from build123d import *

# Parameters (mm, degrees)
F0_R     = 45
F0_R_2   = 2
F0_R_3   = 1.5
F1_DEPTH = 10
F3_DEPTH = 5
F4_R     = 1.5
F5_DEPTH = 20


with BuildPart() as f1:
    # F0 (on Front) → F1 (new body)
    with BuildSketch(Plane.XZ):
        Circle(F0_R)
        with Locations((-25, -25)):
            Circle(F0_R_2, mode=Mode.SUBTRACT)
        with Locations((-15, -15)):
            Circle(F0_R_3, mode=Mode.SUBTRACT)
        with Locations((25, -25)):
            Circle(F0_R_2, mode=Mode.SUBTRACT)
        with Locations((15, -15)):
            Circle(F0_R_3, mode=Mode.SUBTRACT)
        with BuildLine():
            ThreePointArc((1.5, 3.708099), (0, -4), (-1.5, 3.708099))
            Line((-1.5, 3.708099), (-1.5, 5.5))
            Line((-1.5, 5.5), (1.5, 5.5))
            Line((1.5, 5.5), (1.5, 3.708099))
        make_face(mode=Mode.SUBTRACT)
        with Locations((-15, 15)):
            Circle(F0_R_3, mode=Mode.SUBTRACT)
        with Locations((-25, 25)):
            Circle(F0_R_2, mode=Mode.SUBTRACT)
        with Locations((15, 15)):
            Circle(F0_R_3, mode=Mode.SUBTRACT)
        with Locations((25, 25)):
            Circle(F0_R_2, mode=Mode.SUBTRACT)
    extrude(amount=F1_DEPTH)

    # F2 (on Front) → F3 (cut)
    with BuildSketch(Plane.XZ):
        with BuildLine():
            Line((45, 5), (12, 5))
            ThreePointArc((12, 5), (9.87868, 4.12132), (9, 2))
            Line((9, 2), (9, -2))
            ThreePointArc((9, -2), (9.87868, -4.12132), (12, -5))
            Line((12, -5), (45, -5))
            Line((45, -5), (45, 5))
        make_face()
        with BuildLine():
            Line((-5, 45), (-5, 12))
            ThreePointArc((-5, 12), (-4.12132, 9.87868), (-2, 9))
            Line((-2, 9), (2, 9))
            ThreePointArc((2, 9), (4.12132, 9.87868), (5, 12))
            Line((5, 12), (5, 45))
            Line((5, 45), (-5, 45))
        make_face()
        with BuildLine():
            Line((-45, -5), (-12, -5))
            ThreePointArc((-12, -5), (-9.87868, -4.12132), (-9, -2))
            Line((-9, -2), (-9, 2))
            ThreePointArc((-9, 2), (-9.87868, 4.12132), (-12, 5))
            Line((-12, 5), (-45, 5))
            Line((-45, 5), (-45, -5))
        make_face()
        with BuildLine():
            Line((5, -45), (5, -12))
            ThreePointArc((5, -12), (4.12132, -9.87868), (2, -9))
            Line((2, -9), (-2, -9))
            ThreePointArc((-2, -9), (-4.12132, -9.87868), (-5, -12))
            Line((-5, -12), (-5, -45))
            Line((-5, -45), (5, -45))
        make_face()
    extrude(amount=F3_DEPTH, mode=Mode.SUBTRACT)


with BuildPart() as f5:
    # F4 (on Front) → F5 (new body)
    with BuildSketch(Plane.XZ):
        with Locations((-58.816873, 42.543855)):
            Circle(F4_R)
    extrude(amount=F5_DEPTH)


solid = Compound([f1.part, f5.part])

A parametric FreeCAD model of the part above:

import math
import FreeCAD as App
import Part
import Sketcher

V = App.Vector
Q = App.Units.Quantity

doc = App.newDocument("Part")
body = doc.addObject("PartDesign::Body", "Body")

sketch1 = body.newObject("Sketcher::SketchObject", "Sketch")
sketch1.AttachmentSupport = (doc.getObject("XZ_Plane"), [""])
sketch1.MapMode = "FlatFace"
sketch1.addGeometry([
    Part.Circle(V(0, 0, 0), V(0, 0, 1), 45),
    Part.Circle(V(-25, -25, 0), V(0, 0, 1), 2),
    Part.Circle(V(-15, -15, 0), V(0, 0, 1), 1.5),
    Part.Circle(V(25, -25, 0), V(0, 0, 1), 2),
    Part.Circle(V(15, -15, 0), V(0, 0, 1), 1.5),
    Part.Circle(V(-15, 15, 0), V(0, 0, 1), 1.5),
    Part.Circle(V(-25, 25, 0), V(0, 0, 1), 2),
    Part.LineSegment(V(1.5, 5.5, 0), V(1.5, 3.7, 0)),
    Part.ArcOfCircle(Part.Circle(V(0, 0, 0), V(0, 0, 1), 4), math.radians(112), math.radians(428)),
    Part.LineSegment(V(-1.5, 3.7, 0), V(-1.5, 5.5, 0)),
    Part.LineSegment(V(-1.5, 5.5, 0), V(1.5, 5.5, 0)),
    Part.Circle(V(15, 15, 0), V(0, 0, 1), 1.5),
    Part.Circle(V(25, 25, 0), V(0, 0, 1), 2),
], False)
sketch1.addConstraint([
    Sketcher.Constraint("Coincident", 7, 2, 8, 2),
    Sketcher.Constraint("Coincident", 8, 1, 9, 1),
    Sketcher.Constraint("Coincident", 9, 2, 10, 1),
    Sketcher.Constraint("Coincident", 10, 2, 7, 1),
    Sketcher.Constraint("Vertical", 7),
    Sketcher.Constraint("Vertical", 9),
    Sketcher.Constraint("Horizontal", 10),
    Sketcher.Constraint("Coincident", 0, 3, -1, 1),
    Sketcher.Constraint("Coincident", 8, 3, -1, 1),
    Sketcher.Constraint("Equal", 1, 3),
    Sketcher.Constraint("Equal", 2, 4),
    Sketcher.Constraint("Equal", 4, 5),
    Sketcher.Constraint("Equal", 3, 6),
    Sketcher.Constraint("Equal", 5, 11),
    Sketcher.Constraint("Equal", 6, 12),
    Sketcher.Constraint("Symmetric", 4, 3, 5, 3, -1, 1),
    Sketcher.Constraint("Symmetric", 3, 3, 6, 3, -1, 1),
    Sketcher.Constraint("Symmetric", 2, 3, 11, 3, -1, 1),
    Sketcher.Constraint("Symmetric", 1, 3, 12, 3, -1, 1),
    Sketcher.Constraint("Symmetric", 1, 3, 3, 3, -2),
    Sketcher.Constraint("Symmetric", 2, 3, 4, 3, -2),
    Sketcher.Constraint("Horizontal", 7, 2, 8, 1),
    Sketcher.Constraint("Diameter", 0, Q("90 mm")),
    Sketcher.Constraint("Diameter", 1, Q("4 mm")),
    Sketcher.Constraint("Diameter", 2, Q("3 mm")),
    Sketcher.Constraint("Radius", 8, Q("4 mm")),
    Sketcher.Constraint("DistanceX", 10, 1, 10, 2, Q("3 mm")),
    Sketcher.Constraint("DistanceX", 1, 3, -1, 1, Q("25 mm")),
    Sketcher.Constraint("DistanceY", 1, 3, -1, 1, Q("25 mm")),
    Sketcher.Constraint("DistanceX", 2, 3, -1, 1, Q("15 mm")),
    Sketcher.Constraint("DistanceY", 2, 3, -1, 1, Q("15 mm")),
    Sketcher.Constraint("DistanceY", -1, 1, 9, 2, Q("5.5 mm")),
])
pad1 = body.newObject("PartDesign::Pad", "Pad")
pad1.Profile = sketch1
pad1.Length = 10

sketch2 = body.newObject("Sketcher::SketchObject", "Sketch001")
sketch2.AttachmentSupport = (doc.getObject("XZ_Plane"), [""])
sketch2.MapMode = "FlatFace"
sketch2.addGeometry([
    Part.LineSegment(V(45, 5, 0), V(12, 5, 0)),
    Part.ArcOfCircle(Part.Circle(V(12, 2, 0), V(0, 0, 1), 3), math.radians(90), math.radians(180)),
    Part.LineSegment(V(9, 2, 0), V(9, -2, 0)),
    Part.ArcOfCircle(Part.Circle(V(12, -2, 0), V(0, 0, 1), 3), math.radians(-180), math.radians(-90)),
    Part.LineSegment(V(12, -5, 0), V(45, -5, 0)),
    Part.LineSegment(V(45, -5, 0), V(45, 5, 0)),
    Part.LineSegment(V(-5, 45, 0), V(-5, 12, 0)),
    Part.ArcOfCircle(Part.Circle(V(-2, 12, 0), V(0, 0, 1), 3), math.radians(-180), math.radians(-90)),
    Part.LineSegment(V(-2, 9, 0), V(2, 9, 0)),
    Part.ArcOfCircle(Part.Circle(V(2, 12, 0), V(0, 0, 1), 3), math.radians(-90), math.radians(0)),
    Part.LineSegment(V(5, 12, 0), V(5, 45, 0)),
    Part.LineSegment(V(5, 45, 0), V(-5, 45, 0)),
    Part.LineSegment(V(-45, -5, 0), V(-12, -5, 0)),
    Part.ArcOfCircle(Part.Circle(V(-12, -2, 0), V(0, 0, 1), 3), math.radians(-90), math.radians(0)),
    Part.LineSegment(V(-9, -2, 0), V(-9, 2, 0)),
    Part.ArcOfCircle(Part.Circle(V(-12, 2, 0), V(0, 0, 1), 3), math.radians(0), math.radians(90)),
    Part.LineSegment(V(-12, 5, 0), V(-45, 5, 0)),
    Part.LineSegment(V(-45, 5, 0), V(-45, -5, 0)),
    Part.LineSegment(V(5, -45, 0), V(5, -12, 0)),
    Part.ArcOfCircle(Part.Circle(V(2, -12, 0), V(0, 0, 1), 3), math.radians(0), math.radians(90)),
    Part.LineSegment(V(2, -9, 0), V(-2, -9, 0)),
    Part.ArcOfCircle(Part.Circle(V(-2, -12, 0), V(0, 0, 1), 3), math.radians(90), math.radians(180)),
    Part.LineSegment(V(-5, -12, 0), V(-5, -45, 0)),
    Part.LineSegment(V(-5, -45, 0), V(5, -45, 0)),
], False)
sketch2.addConstraint([
    Sketcher.Constraint("Tangent", 0, 2, 1, 1),
    Sketcher.Constraint("Tangent", 1, 2, 2, 1),
    Sketcher.Constraint("Tangent", 2, 2, 3, 1),
    Sketcher.Constraint("Tangent", 3, 2, 4, 1),
    Sketcher.Constraint("Coincident", 4, 2, 5, 1),
    Sketcher.Constraint("Coincident", 5, 2, 0, 1),
    Sketcher.Constraint("Tangent", 6, 2, 7, 1),
    Sketcher.Constraint("Tangent", 7, 2, 8, 1),
    Sketcher.Constraint("Tangent", 8, 2, 9, 1),
    Sketcher.Constraint("Tangent", 9, 2, 10, 1),
    Sketcher.Constraint("Coincident", 10, 2, 11, 1),
    Sketcher.Constraint("Coincident", 11, 2, 6, 1),
    Sketcher.Constraint("Tangent", 12, 2, 13, 1),
    Sketcher.Constraint("Tangent", 13, 2, 14, 1),
    Sketcher.Constraint("Tangent", 14, 2, 15, 1),
    Sketcher.Constraint("Tangent", 15, 2, 16, 1),
    Sketcher.Constraint("Coincident", 16, 2, 17, 1),
    Sketcher.Constraint("Coincident", 17, 2, 12, 1),
    Sketcher.Constraint("Tangent", 18, 2, 19, 1),
    Sketcher.Constraint("Tangent", 19, 2, 20, 1),
    Sketcher.Constraint("Tangent", 20, 2, 21, 1),
    Sketcher.Constraint("Tangent", 21, 2, 22, 1),
    Sketcher.Constraint("Coincident", 22, 2, 23, 1),
    Sketcher.Constraint("Coincident", 23, 2, 18, 1),
    Sketcher.Constraint("Horizontal", 0),
    Sketcher.Constraint("Vertical", 2),
    Sketcher.Constraint("Horizontal", 4),
    Sketcher.Constraint("Vertical", 5),
    Sketcher.Constraint("Vertical", 6),
    Sketcher.Constraint("Horizontal", 8),
    Sketcher.Constraint("Vertical", 10),
    Sketcher.Constraint("Horizontal", 11),
    Sketcher.Constraint("Horizontal", 12),
    Sketcher.Constraint("Vertical", 14),
    Sketcher.Constraint("Horizontal", 16),
    Sketcher.Constraint("Vertical", 17),
    Sketcher.Constraint("Vertical", 18),
    Sketcher.Constraint("Horizontal", 20),
    Sketcher.Constraint("Vertical", 22),
    Sketcher.Constraint("Horizontal", 23),
    Sketcher.Constraint("Equal", 1, 3),
    Sketcher.Constraint("Equal", 3, 7),
    Sketcher.Constraint("Equal", 7, 9),
    Sketcher.Constraint("Equal", 9, 13),
    Sketcher.Constraint("Equal", 13, 15),
    Sketcher.Constraint("Equal", 15, 19),
    Sketcher.Constraint("Equal", 19, 21),
    Sketcher.Constraint("Symmetric", 1, 3, 13, 3, -1, 1),
    Sketcher.Constraint("Symmetric", 7, 3, 19, 3, -1, 1),
    Sketcher.Constraint("Symmetric", 4, 2, 16, 2, -1, 1),
    Sketcher.Constraint("Symmetric", 10, 2, 22, 2, -1, 1),
    Sketcher.Constraint("Horizontal", 3, 3, 13, 3),
    Sketcher.Constraint("Vertical", 9, 3, 19, 3),
    Sketcher.Constraint("Equal", 20, 2),
    Sketcher.Constraint("Equal", 16, 6),
    Sketcher.Constraint("Radius", 1, Q("3.000001 mm")),
    Sketcher.Constraint("DistanceX", 0, 2, 0, 1, Q("33 mm")),
    Sketcher.Constraint("DistanceX", 8, 1, 8, 2, Q("4 mm")),
    Sketcher.Constraint("DistanceX", -1, 1, 1, 3, Q("12.000001 mm")),
    Sketcher.Constraint("DistanceY", -1, 1, 7, 3, Q("12.000001 mm")),
])
pocket1 = body.newObject("PartDesign::Pocket", "Pocket")
pocket1.Profile = sketch2
pocket1.Length = 5
pocket1.Reversed = True
body2 = doc.addObject("PartDesign::Body", "Body001")

sketch3 = body2.newObject("Sketcher::SketchObject", "Sketch002")
sketch3.AttachmentSupport = (doc.getObject("XZ_Plane001"), [""])
sketch3.MapMode = "FlatFace"
sketch3.addGeometry(Part.Circle(V(-58.8, 42.5, 0), V(0, 0, 1), 1.5), False)
sketch3.addConstraint([
    Sketcher.Constraint("Diameter", 0, Q("3 mm")),
    Sketcher.Constraint("DistanceX", 0, 3, -1, 1, Q("58.816873 mm")),
    Sketcher.Constraint("DistanceY", -1, 1, 0, 3, Q("42.543855 mm")),
])
pad2 = body2.newObject("PartDesign::Pad", "Pad001")
pad2.Profile = sketch3
pad2.Length = 20

doc.recompute()
